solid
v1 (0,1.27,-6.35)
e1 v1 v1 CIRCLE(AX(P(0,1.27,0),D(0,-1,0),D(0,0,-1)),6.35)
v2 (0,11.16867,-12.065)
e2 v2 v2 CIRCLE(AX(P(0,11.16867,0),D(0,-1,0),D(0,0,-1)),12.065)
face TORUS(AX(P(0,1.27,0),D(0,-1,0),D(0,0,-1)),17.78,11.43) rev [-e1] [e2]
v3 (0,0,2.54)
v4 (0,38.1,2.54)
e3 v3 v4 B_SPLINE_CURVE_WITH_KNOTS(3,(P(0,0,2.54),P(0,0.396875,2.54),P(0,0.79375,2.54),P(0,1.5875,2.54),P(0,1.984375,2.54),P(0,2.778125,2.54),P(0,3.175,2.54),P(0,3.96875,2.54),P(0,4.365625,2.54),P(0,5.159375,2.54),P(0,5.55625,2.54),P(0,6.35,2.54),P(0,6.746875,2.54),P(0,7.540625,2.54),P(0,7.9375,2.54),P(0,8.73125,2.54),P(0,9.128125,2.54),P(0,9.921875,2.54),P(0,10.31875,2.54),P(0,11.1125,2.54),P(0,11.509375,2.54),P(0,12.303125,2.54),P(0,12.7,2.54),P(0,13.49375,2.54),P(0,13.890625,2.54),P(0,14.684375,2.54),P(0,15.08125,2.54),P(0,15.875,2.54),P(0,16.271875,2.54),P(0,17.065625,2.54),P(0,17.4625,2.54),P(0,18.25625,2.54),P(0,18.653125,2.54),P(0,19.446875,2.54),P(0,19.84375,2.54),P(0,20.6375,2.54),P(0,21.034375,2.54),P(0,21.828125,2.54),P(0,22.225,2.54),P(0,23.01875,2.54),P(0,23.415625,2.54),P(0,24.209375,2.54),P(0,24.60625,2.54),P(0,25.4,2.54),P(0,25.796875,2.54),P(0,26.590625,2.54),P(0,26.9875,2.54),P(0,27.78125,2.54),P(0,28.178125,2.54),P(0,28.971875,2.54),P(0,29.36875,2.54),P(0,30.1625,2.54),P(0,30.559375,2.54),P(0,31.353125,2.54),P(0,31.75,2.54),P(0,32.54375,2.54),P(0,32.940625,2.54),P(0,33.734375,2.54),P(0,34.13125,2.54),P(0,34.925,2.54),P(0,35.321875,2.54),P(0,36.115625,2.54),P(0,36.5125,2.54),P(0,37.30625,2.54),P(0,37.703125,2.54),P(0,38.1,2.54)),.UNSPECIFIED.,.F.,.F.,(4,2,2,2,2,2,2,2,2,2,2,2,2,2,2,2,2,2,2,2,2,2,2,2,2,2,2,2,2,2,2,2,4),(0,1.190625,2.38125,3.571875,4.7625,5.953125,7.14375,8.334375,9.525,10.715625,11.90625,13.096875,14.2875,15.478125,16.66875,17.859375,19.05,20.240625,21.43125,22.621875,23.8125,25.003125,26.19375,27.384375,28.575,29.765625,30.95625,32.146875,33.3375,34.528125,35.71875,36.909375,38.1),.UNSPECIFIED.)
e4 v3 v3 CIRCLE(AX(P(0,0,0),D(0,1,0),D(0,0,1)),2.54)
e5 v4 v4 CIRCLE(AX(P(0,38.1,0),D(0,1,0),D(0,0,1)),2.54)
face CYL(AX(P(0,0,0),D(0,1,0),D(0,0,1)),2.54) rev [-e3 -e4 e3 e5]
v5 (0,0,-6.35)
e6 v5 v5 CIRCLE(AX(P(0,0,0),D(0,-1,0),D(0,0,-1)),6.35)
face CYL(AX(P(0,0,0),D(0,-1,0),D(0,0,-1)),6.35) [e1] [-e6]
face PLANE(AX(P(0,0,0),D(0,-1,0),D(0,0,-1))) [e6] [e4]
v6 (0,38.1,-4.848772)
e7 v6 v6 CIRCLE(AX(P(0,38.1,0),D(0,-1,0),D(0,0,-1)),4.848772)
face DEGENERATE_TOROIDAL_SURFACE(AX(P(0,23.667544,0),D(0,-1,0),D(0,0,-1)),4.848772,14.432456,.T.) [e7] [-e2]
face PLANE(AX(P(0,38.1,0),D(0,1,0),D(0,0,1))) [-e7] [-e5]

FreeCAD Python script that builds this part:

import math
import FreeCAD as App
import Part
import Sketcher

V = App.Vector
Q = App.Units.Quantity

doc = App.newDocument("Part")
body = doc.addObject("PartDesign::Body", "Body")

sketch1 = doc.addObject("Sketcher::SketchObject", "Sketch")
body.addObject(sketch1)
sketch1.AttachmentSupport = (doc.XY_Plane, [""])
sketch1.MapMode = "FlatFace"
sketch1.addGeometry(Part.LineSegment(V(0, 0, 0), V(6.3, 0, 0)), False)
sketch1.addGeometry(Part.LineSegment(V(6.3, 0, 0), V(6.3, 1.3, 0)), False)
sketch1.addGeometry(Part.ArcOfCircle(Part.Circle(V(17.8, 1.3, 0), V(0, 0, 1), 11.4), math.radians(120), math.radians(180)), False)
sketch1.addGeometry(Part.ArcOfCircle(Part.Circle(V(4.8, 23.7, 0), V(0, 0, 1), 14.4), math.radians(-60), math.radians(90)), False)
sketch1.addGeometry(Part.LineSegment(V(4.8, 38.1, 0), V(0, 38.1, 0)), False)
sketch1.addGeometry(Part.LineSegment(V(0, 38.1, 0), V(0, 0, 0)), False)
sketch1.addConstraint(Sketcher.Constraint("Coincident", 0, 2, 1, 1))
sketch1.addConstraint(Sketcher.Constraint("Tangent", 1, 2, 2, 2))
sketch1.addConstraint(Sketcher.Constraint("Tangent", 2, 1, 3, 1))
sketch1.addConstraint(Sketcher.Constraint("Tangent", 3, 2, 4, 1))
sketch1.addConstraint(Sketcher.Constraint("Coincident", 4, 2, 5, 1))
sketch1.addConstraint(Sketcher.Constraint("Coincident", 5, 2, 0, 1))
sketch1.addConstraint(Sketcher.Constraint("Horizontal", 0))
sketch1.addConstraint(Sketcher.Constraint("Vertical", 1))
sketch1.addConstraint(Sketcher.Constraint("Horizontal", 4))
sketch1.addConstraint(Sketcher.Constraint("Vertical", 5))
sketch1.addConstraint(Sketcher.Constraint("Coincident", 5, 2, -1, 1))
sketch1.addConstraint(Sketcher.Constraint("Radius", 2, Q("0.45 in")))
sketch1.addConstraint(Sketcher.Constraint("DistanceY", 5, 2, 5, 1, Q("1.5 in")))
sketch1.addConstraint(Sketcher.Constraint("DistanceX", 0, 1, 0, 2, Q("0.25 in")))
sketch1.addConstraint(Sketcher.Constraint("DistanceY", 1, 1, 1, 2, Q("0.05 in")))
sketch1.addConstraint(Sketcher.Constraint("DistanceX", -1, 1, 2, 1, Q("0.475 in")))
revolution = doc.addObject("PartDesign::Revolution", "Revolution")
body.addObject(revolution)
revolution.Profile = sketch1
revolution.ReferenceAxis = (sketch1, ["V_Axis"])
revolution.Angle = 360

sketch2 = doc.addObject("Sketcher::SketchObject", "Sketch001")
body.addObject(sketch2)
sketch2.AttachmentSupport = (doc.XZ_Plane, [""])
sketch2.MapMode = "FlatFace"
sketch2.AttachmentOffset = App.Placement(V(0, 0, -1.5 * 25.4), App.Rotation())
sketch2.addGeometry(Part.Circle(V(0, 0, 0), V(0, 0, 1), 2.5), False)
sketch2.addConstraint(Sketcher.Constraint("Coincident", 0, 3, -1, 1))
sketch2.addConstraint(Sketcher.Constraint("Diameter", 0, Q("0.2 in")))
pocket1 = doc.addObject("PartDesign::Pocket", "Pocket")
body.addObject(pocket1)
pocket1.Profile = sketch2
pocket1.Type = "ThroughAll"
pocket1.Reversed = True

doc.recompute()
